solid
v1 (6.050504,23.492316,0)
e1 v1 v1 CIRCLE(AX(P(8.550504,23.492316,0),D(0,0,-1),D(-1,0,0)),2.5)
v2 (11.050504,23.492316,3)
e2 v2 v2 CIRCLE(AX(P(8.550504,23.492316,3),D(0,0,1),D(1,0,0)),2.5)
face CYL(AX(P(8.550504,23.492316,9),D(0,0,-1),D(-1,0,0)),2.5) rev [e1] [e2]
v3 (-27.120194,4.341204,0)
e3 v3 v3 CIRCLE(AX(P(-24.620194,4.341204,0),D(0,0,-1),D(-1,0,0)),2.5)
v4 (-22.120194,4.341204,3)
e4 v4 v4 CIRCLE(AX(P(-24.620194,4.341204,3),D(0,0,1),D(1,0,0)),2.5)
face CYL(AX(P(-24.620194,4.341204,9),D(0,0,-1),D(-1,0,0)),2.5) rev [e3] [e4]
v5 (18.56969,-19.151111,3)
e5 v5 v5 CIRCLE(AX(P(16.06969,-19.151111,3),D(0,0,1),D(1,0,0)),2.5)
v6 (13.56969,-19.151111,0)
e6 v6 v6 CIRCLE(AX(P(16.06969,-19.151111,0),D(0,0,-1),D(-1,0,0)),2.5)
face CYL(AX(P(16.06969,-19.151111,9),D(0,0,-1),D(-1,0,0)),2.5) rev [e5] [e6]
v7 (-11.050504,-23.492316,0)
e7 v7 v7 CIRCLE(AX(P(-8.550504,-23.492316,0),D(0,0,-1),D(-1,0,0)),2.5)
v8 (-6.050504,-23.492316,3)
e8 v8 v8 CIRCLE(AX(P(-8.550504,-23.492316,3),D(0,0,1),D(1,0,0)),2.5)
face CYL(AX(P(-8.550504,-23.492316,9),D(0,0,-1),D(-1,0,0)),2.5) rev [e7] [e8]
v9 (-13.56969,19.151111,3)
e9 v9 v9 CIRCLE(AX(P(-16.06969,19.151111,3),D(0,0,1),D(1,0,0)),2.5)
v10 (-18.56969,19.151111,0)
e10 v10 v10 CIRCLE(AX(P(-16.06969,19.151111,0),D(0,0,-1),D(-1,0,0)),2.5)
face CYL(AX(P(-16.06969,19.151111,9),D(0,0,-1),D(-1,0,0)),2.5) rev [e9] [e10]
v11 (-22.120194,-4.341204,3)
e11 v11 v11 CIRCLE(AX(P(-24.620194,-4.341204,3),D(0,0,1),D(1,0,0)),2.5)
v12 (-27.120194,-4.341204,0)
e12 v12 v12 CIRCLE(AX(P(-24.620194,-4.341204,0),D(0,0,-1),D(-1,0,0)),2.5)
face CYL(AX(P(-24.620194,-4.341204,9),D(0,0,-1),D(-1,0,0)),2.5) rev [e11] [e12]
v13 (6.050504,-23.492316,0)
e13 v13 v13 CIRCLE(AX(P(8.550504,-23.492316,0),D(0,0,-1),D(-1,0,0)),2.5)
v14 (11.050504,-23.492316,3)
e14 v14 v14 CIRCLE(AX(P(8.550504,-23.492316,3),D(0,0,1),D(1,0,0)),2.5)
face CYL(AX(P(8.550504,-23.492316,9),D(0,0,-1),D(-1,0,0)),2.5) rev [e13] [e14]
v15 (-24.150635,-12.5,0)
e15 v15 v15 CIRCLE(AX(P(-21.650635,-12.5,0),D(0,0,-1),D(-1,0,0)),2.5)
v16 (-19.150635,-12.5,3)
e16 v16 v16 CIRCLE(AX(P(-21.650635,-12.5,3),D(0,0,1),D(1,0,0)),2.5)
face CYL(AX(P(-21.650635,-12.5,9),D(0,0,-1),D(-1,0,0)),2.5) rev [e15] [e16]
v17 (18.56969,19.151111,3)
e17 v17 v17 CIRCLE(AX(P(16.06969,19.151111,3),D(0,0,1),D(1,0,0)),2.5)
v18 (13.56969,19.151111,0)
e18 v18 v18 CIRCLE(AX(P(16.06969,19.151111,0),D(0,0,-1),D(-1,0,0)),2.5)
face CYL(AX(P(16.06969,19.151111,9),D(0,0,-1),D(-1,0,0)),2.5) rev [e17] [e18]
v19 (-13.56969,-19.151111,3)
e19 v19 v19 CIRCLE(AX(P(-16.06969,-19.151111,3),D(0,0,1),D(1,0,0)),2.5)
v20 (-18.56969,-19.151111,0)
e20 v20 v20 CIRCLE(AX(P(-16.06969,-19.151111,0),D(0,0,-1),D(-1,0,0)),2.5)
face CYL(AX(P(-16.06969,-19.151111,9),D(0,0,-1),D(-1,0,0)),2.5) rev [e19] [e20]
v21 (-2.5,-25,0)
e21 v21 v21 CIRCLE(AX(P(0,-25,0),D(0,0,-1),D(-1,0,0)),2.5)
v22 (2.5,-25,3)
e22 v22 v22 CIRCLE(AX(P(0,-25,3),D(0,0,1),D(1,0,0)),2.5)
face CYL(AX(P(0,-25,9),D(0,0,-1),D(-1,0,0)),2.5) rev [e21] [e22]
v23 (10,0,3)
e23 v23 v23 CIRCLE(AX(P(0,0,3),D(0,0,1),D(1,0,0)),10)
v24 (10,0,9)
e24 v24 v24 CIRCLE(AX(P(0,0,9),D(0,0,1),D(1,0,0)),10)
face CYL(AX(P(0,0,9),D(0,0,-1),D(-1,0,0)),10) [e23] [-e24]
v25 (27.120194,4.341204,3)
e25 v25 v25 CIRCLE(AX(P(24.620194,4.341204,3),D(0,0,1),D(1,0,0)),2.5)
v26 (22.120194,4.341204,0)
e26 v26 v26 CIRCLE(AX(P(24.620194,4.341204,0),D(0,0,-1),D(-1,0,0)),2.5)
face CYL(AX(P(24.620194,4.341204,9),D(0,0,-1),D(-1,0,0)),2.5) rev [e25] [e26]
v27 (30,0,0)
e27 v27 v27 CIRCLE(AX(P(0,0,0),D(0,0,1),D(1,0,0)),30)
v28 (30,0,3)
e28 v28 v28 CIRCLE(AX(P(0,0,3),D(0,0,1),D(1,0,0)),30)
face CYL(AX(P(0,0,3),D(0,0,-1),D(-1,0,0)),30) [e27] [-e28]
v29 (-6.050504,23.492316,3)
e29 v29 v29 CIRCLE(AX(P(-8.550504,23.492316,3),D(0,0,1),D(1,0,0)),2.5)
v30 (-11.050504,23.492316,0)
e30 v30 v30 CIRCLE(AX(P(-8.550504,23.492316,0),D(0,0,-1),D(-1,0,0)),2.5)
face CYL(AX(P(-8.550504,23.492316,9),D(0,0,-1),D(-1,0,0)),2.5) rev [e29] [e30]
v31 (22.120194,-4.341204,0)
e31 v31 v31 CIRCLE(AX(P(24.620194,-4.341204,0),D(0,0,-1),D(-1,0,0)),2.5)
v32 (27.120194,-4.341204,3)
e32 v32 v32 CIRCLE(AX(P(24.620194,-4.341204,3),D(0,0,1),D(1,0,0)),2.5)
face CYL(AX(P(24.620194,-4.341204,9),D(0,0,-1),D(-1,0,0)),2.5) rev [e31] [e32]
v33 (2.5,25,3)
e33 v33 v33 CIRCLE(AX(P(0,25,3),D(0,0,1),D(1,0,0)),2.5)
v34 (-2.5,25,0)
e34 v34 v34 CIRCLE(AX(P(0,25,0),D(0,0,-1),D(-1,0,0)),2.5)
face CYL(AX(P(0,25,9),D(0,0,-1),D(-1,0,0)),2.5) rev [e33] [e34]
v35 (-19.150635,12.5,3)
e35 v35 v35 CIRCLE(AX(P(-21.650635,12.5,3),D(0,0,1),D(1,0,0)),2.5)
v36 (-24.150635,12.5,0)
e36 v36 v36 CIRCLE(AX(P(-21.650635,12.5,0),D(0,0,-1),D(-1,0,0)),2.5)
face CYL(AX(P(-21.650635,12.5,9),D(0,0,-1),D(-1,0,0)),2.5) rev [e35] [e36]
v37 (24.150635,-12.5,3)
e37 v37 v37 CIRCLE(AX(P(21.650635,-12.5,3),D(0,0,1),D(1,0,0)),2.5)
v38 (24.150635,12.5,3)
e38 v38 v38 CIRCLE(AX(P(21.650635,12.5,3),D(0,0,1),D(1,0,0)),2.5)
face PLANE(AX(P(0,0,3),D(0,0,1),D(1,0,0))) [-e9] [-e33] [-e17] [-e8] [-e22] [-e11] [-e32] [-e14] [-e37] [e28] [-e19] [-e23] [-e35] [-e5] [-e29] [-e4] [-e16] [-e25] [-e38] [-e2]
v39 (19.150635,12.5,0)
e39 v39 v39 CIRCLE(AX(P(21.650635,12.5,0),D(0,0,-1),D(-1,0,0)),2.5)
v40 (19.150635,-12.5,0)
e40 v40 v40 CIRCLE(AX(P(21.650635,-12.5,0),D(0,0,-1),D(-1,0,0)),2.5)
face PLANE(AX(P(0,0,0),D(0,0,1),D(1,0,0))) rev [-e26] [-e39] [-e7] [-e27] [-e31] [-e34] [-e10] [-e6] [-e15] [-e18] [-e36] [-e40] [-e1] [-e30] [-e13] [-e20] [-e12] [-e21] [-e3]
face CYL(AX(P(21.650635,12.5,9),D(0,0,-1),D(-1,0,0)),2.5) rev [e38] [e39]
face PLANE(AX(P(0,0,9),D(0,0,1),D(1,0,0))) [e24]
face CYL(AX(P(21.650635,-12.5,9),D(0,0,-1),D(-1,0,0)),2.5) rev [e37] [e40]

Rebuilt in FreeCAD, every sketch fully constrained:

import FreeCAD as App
import Part
import Sketcher

doc = App.newDocument("Part")
body = doc.addObject("PartDesign::Body", "Body")

sketch1 = doc.addObject("Sketcher::SketchObject", "Sketch")
body.addObject(sketch1)
sketch1.AttachmentSupport = (doc.XY_Plane, [""])
sketch1.MapMode = "FlatFace"
sketch1.addGeometry(Part.Circle(App.Vector(0, 0, 0), App.Vector(0, 0, 1), 30), False)
sketch1.addConstraint(Sketcher.Constraint("Coincident", 0, 3, -1, 1))
sketch1.addConstraint(Sketcher.Constraint("Diameter", 0, 60.0))
pad1 = doc.addObject("PartDesign::Pad", "Pad")
body.addObject(pad1)
pad1.Profile = sketch1
pad1.Length = 3

sketch2 = doc.addObject("Sketcher::SketchObject", "Sketch001")
body.addObject(sketch2)
sketch2.AttachmentSupport = (doc.XY_Plane, [""])
sketch2.MapMode = "FlatFace"
sketch2.AttachmentOffset = App.Placement(App.Vector(0, 0, 3), App.Rotation())
sketch2.addGeometry(Part.Circle(App.Vector(0, 0, 0), App.Vector(0, 0, 1), 10), False)
sketch2.addConstraint(Sketcher.Constraint("Coincident", 0, 3, -1, 1))
sketch2.addConstraint(Sketcher.Constraint("Diameter", 0, 20.0))
pad2 = doc.addObject("PartDesign::Pad", "Pad001")
body.addObject(pad2)
pad2.Profile = sketch2
pad2.Length = 6

sketch3 = doc.addObject("Sketcher::SketchObject", "Sketch002")
body.addObject(sketch3)
sketch3.AttachmentSupport = (doc.XY_Plane, [""])
sketch3.MapMode = "FlatFace"
sketch3.addGeometry(Part.Circle(App.Vector(0, 25, 0), App.Vector(0, 0, 1), 2.5), False)
sketch3.addGeometry(Part.Circle(App.Vector(-8.6, 23.5, 0), App.Vector(0, 0, 1), 2.5), False)
sketch3.addGeometry(Part.Circle(App.Vector(-16.1, 19.2, 0), App.Vector(0, 0, 1), 2.5), False)
sketch3.addGeometry(Part.Circle(App.Vector(-21.7, 12.5, 0), App.Vector(0, 0, 1), 2.5), False)
sketch3.addGeometry(Part.Circle(App.Vector(-24.6, 4.3, 0), App.Vector(0, 0, 1), 2.5), False)
sketch3.addGeometry(Part.Circle(App.Vector(-24.6, -4.3, 0), App.Vector(0, 0, 1), 2.5), False)
sketch3.addGeometry(Part.Circle(App.Vector(-21.7, -12.5, 0), App.Vector(0, 0, 1), 2.5), False)
sketch3.addGeometry(Part.Circle(App.Vector(-16.1, -19.2, 0), App.Vector(0, 0, 1), 2.5), False)
sketch3.addGeometry(Part.Circle(App.Vector(-8.6, -23.5, 0), App.Vector(0, 0, 1), 2.5), False)
sketch3.addGeometry(Part.Circle(App.Vector(0, -25, 0), App.Vector(0, 0, 1), 2.5), False)
sketch3.addGeometry(Part.Circle(App.Vector(8.6, -23.5, 0), App.Vector(0, 0, 1), 2.5), False)
sketch3.addGeometry(Part.Circle(App.Vector(16.1, -19.2, 0), App.Vector(0, 0, 1), 2.5), False)
sketch3.addGeometry(Part.Circle(App.Vector(21.7, -12.5, 0), App.Vector(0, 0, 1), 2.5), False)
sketch3.addGeometry(Part.Circle(App.Vector(24.6, -4.3, 0), App.Vector(0, 0, 1), 2.5), False)
sketch3.addGeometry(Part.Circle(App.Vector(24.6, 4.3, 0), App.Vector(0, 0, 1), 2.5), False)
sketch3.addGeometry(Part.Circle(App.Vector(21.7, 12.5, 0), App.Vector(0, 0, 1), 2.5), False)
sketch3.addGeometry(Part.Circle(App.Vector(16.1, 19.2, 0), App.Vector(0, 0, 1), 2.5), False)
sketch3.addGeometry(Part.Circle(App.Vector(8.6, 23.5, 0), App.Vector(0, 0, 1), 2.5), False)
sketch3.addConstraint(Sketcher.Constraint("Equal", 0, 1))
sketch3.addConstraint(Sketcher.Constraint("Equal", 1, 2))
sketch3.addConstraint(Sketcher.Constraint("Equal", 2, 3))
sketch3.addConstraint(Sketcher.Constraint("Equal", 3, 4))
sketch3.addConstraint(Sketcher.Constraint("Equal", 4, 5))
sketch3.addConstraint(Sketcher.Constraint("Equal", 5, 6))
sketch3.addConstraint(Sketcher.Constraint("Equal", 6, 7))
sketch3.addConstraint(Sketcher.Constraint("Equal", 7, 8))
sketch3.addConstraint(Sketcher.Constraint("Equal", 8, 9))
sketch3.addConstraint(Sketcher.Constraint("Equal", 9, 10))
sketch3.addConstraint(Sketcher.Constraint("Equal", 10, 11))
sketch3.addConstraint(Sketcher.Constraint("Equal", 11, 12))
sketch3.addConstraint(Sketcher.Constraint("Equal", 12, 13))
sketch3.addConstraint(Sketcher.Constraint("Equal", 13, 14))
sketch3.addConstraint(Sketcher.Constraint("Equal", 14, 15))
sketch3.addConstraint(Sketcher.Constraint("Equal", 15, 16))
sketch3.addConstraint(Sketcher.Constraint("Equal", 16, 17))
sketch3.addConstraint(Sketcher.Constraint("Symmetric", 0, 3, 9, 3, -1, 1))
sketch3.addConstraint(Sketcher.Constraint("Symmetric", 1, 3, 10, 3, -1, 1))
sketch3.addConstraint(Sketcher.Constraint("Symmetric", 2, 3, 11, 3, -1, 1))
sketch3.addConstraint(Sketcher.Constraint("Symmetric", 3, 3, 12, 3, -1, 1))
sketch3.addConstraint(Sketcher.Constraint("Symmetric", 4, 3, 13, 3, -1, 1))
sketch3.addConstraint(Sketcher.Constraint("Symmetric", 5, 3, 14, 3, -1, 1))
sketch3.addConstraint(Sketcher.Constraint("Symmetric", 6, 3, 15, 3, -1, 1))
sketch3.addConstraint(Sketcher.Constraint("Symmetric", 7, 3, 16, 3, -1, 1))
sketch3.addConstraint(Sketcher.Constraint("Symmetric", 8, 3, 17, 3, -1, 1))
sketch3.addConstraint(Sketcher.Constraint("Symmetric", 8, 3, 10, 3, -2))
sketch3.addConstraint(Sketcher.Constraint("Symmetric", 7, 3, 11, 3, -2))
sketch3.addConstraint(Sketcher.Constraint("Symmetric", 6, 3, 12, 3, -2))
sketch3.addConstraint(Sketcher.Constraint("Symmetric", 5, 3, 13, 3, -2))
sketch3.addConstraint(Sketcher.Constraint("PointOnObject", 0, 3, -2))
sketch3.addConstraint(Sketcher.Constraint("Diameter", 0, 5.0))
sketch3.addConstraint(Sketcher.Constraint("DistanceY", -1, 1, 0, 3, 25.0))
sketch3.addConstraint(Sketcher.Constraint("DistanceY", 6, 3, 3, 3, 25.0))
sketch3.addConstraint(Sketcher.Constraint("DistanceX", 2, 3, -1, 1, 16.06969))
sketch3.addConstraint(Sketcher.Constraint("DistanceY", -1, 1, 2, 3, 19.151111))
sketch3.addConstraint(Sketcher.Constraint("DistanceX", 3, 3, 1, 3, 13.100132))
sketch3.addConstraint(Sketcher.Constraint("DistanceX", 4, 3, 3, 3, 2.969559))
sketch3.addConstraint(Sketcher.Constraint("DistanceY", 4, 3, 1, 3, 19.151111))
sketch3.addConstraint(Sketcher.Constraint("DistanceY", 5, 3, 4, 3, 8.682409))
sketch3.addConstraint(Sketcher.Constraint("DistanceX", 6, 3, 10, 3, 30.201139))
pocket1 = doc.addObject("PartDesign::Pocket", "Pocket")
body.addObject(pocket1)
pocket1.Profile = sketch3
pocket1.Type = "ThroughAll"
pocket1.Reversed = True

doc.recompute()
